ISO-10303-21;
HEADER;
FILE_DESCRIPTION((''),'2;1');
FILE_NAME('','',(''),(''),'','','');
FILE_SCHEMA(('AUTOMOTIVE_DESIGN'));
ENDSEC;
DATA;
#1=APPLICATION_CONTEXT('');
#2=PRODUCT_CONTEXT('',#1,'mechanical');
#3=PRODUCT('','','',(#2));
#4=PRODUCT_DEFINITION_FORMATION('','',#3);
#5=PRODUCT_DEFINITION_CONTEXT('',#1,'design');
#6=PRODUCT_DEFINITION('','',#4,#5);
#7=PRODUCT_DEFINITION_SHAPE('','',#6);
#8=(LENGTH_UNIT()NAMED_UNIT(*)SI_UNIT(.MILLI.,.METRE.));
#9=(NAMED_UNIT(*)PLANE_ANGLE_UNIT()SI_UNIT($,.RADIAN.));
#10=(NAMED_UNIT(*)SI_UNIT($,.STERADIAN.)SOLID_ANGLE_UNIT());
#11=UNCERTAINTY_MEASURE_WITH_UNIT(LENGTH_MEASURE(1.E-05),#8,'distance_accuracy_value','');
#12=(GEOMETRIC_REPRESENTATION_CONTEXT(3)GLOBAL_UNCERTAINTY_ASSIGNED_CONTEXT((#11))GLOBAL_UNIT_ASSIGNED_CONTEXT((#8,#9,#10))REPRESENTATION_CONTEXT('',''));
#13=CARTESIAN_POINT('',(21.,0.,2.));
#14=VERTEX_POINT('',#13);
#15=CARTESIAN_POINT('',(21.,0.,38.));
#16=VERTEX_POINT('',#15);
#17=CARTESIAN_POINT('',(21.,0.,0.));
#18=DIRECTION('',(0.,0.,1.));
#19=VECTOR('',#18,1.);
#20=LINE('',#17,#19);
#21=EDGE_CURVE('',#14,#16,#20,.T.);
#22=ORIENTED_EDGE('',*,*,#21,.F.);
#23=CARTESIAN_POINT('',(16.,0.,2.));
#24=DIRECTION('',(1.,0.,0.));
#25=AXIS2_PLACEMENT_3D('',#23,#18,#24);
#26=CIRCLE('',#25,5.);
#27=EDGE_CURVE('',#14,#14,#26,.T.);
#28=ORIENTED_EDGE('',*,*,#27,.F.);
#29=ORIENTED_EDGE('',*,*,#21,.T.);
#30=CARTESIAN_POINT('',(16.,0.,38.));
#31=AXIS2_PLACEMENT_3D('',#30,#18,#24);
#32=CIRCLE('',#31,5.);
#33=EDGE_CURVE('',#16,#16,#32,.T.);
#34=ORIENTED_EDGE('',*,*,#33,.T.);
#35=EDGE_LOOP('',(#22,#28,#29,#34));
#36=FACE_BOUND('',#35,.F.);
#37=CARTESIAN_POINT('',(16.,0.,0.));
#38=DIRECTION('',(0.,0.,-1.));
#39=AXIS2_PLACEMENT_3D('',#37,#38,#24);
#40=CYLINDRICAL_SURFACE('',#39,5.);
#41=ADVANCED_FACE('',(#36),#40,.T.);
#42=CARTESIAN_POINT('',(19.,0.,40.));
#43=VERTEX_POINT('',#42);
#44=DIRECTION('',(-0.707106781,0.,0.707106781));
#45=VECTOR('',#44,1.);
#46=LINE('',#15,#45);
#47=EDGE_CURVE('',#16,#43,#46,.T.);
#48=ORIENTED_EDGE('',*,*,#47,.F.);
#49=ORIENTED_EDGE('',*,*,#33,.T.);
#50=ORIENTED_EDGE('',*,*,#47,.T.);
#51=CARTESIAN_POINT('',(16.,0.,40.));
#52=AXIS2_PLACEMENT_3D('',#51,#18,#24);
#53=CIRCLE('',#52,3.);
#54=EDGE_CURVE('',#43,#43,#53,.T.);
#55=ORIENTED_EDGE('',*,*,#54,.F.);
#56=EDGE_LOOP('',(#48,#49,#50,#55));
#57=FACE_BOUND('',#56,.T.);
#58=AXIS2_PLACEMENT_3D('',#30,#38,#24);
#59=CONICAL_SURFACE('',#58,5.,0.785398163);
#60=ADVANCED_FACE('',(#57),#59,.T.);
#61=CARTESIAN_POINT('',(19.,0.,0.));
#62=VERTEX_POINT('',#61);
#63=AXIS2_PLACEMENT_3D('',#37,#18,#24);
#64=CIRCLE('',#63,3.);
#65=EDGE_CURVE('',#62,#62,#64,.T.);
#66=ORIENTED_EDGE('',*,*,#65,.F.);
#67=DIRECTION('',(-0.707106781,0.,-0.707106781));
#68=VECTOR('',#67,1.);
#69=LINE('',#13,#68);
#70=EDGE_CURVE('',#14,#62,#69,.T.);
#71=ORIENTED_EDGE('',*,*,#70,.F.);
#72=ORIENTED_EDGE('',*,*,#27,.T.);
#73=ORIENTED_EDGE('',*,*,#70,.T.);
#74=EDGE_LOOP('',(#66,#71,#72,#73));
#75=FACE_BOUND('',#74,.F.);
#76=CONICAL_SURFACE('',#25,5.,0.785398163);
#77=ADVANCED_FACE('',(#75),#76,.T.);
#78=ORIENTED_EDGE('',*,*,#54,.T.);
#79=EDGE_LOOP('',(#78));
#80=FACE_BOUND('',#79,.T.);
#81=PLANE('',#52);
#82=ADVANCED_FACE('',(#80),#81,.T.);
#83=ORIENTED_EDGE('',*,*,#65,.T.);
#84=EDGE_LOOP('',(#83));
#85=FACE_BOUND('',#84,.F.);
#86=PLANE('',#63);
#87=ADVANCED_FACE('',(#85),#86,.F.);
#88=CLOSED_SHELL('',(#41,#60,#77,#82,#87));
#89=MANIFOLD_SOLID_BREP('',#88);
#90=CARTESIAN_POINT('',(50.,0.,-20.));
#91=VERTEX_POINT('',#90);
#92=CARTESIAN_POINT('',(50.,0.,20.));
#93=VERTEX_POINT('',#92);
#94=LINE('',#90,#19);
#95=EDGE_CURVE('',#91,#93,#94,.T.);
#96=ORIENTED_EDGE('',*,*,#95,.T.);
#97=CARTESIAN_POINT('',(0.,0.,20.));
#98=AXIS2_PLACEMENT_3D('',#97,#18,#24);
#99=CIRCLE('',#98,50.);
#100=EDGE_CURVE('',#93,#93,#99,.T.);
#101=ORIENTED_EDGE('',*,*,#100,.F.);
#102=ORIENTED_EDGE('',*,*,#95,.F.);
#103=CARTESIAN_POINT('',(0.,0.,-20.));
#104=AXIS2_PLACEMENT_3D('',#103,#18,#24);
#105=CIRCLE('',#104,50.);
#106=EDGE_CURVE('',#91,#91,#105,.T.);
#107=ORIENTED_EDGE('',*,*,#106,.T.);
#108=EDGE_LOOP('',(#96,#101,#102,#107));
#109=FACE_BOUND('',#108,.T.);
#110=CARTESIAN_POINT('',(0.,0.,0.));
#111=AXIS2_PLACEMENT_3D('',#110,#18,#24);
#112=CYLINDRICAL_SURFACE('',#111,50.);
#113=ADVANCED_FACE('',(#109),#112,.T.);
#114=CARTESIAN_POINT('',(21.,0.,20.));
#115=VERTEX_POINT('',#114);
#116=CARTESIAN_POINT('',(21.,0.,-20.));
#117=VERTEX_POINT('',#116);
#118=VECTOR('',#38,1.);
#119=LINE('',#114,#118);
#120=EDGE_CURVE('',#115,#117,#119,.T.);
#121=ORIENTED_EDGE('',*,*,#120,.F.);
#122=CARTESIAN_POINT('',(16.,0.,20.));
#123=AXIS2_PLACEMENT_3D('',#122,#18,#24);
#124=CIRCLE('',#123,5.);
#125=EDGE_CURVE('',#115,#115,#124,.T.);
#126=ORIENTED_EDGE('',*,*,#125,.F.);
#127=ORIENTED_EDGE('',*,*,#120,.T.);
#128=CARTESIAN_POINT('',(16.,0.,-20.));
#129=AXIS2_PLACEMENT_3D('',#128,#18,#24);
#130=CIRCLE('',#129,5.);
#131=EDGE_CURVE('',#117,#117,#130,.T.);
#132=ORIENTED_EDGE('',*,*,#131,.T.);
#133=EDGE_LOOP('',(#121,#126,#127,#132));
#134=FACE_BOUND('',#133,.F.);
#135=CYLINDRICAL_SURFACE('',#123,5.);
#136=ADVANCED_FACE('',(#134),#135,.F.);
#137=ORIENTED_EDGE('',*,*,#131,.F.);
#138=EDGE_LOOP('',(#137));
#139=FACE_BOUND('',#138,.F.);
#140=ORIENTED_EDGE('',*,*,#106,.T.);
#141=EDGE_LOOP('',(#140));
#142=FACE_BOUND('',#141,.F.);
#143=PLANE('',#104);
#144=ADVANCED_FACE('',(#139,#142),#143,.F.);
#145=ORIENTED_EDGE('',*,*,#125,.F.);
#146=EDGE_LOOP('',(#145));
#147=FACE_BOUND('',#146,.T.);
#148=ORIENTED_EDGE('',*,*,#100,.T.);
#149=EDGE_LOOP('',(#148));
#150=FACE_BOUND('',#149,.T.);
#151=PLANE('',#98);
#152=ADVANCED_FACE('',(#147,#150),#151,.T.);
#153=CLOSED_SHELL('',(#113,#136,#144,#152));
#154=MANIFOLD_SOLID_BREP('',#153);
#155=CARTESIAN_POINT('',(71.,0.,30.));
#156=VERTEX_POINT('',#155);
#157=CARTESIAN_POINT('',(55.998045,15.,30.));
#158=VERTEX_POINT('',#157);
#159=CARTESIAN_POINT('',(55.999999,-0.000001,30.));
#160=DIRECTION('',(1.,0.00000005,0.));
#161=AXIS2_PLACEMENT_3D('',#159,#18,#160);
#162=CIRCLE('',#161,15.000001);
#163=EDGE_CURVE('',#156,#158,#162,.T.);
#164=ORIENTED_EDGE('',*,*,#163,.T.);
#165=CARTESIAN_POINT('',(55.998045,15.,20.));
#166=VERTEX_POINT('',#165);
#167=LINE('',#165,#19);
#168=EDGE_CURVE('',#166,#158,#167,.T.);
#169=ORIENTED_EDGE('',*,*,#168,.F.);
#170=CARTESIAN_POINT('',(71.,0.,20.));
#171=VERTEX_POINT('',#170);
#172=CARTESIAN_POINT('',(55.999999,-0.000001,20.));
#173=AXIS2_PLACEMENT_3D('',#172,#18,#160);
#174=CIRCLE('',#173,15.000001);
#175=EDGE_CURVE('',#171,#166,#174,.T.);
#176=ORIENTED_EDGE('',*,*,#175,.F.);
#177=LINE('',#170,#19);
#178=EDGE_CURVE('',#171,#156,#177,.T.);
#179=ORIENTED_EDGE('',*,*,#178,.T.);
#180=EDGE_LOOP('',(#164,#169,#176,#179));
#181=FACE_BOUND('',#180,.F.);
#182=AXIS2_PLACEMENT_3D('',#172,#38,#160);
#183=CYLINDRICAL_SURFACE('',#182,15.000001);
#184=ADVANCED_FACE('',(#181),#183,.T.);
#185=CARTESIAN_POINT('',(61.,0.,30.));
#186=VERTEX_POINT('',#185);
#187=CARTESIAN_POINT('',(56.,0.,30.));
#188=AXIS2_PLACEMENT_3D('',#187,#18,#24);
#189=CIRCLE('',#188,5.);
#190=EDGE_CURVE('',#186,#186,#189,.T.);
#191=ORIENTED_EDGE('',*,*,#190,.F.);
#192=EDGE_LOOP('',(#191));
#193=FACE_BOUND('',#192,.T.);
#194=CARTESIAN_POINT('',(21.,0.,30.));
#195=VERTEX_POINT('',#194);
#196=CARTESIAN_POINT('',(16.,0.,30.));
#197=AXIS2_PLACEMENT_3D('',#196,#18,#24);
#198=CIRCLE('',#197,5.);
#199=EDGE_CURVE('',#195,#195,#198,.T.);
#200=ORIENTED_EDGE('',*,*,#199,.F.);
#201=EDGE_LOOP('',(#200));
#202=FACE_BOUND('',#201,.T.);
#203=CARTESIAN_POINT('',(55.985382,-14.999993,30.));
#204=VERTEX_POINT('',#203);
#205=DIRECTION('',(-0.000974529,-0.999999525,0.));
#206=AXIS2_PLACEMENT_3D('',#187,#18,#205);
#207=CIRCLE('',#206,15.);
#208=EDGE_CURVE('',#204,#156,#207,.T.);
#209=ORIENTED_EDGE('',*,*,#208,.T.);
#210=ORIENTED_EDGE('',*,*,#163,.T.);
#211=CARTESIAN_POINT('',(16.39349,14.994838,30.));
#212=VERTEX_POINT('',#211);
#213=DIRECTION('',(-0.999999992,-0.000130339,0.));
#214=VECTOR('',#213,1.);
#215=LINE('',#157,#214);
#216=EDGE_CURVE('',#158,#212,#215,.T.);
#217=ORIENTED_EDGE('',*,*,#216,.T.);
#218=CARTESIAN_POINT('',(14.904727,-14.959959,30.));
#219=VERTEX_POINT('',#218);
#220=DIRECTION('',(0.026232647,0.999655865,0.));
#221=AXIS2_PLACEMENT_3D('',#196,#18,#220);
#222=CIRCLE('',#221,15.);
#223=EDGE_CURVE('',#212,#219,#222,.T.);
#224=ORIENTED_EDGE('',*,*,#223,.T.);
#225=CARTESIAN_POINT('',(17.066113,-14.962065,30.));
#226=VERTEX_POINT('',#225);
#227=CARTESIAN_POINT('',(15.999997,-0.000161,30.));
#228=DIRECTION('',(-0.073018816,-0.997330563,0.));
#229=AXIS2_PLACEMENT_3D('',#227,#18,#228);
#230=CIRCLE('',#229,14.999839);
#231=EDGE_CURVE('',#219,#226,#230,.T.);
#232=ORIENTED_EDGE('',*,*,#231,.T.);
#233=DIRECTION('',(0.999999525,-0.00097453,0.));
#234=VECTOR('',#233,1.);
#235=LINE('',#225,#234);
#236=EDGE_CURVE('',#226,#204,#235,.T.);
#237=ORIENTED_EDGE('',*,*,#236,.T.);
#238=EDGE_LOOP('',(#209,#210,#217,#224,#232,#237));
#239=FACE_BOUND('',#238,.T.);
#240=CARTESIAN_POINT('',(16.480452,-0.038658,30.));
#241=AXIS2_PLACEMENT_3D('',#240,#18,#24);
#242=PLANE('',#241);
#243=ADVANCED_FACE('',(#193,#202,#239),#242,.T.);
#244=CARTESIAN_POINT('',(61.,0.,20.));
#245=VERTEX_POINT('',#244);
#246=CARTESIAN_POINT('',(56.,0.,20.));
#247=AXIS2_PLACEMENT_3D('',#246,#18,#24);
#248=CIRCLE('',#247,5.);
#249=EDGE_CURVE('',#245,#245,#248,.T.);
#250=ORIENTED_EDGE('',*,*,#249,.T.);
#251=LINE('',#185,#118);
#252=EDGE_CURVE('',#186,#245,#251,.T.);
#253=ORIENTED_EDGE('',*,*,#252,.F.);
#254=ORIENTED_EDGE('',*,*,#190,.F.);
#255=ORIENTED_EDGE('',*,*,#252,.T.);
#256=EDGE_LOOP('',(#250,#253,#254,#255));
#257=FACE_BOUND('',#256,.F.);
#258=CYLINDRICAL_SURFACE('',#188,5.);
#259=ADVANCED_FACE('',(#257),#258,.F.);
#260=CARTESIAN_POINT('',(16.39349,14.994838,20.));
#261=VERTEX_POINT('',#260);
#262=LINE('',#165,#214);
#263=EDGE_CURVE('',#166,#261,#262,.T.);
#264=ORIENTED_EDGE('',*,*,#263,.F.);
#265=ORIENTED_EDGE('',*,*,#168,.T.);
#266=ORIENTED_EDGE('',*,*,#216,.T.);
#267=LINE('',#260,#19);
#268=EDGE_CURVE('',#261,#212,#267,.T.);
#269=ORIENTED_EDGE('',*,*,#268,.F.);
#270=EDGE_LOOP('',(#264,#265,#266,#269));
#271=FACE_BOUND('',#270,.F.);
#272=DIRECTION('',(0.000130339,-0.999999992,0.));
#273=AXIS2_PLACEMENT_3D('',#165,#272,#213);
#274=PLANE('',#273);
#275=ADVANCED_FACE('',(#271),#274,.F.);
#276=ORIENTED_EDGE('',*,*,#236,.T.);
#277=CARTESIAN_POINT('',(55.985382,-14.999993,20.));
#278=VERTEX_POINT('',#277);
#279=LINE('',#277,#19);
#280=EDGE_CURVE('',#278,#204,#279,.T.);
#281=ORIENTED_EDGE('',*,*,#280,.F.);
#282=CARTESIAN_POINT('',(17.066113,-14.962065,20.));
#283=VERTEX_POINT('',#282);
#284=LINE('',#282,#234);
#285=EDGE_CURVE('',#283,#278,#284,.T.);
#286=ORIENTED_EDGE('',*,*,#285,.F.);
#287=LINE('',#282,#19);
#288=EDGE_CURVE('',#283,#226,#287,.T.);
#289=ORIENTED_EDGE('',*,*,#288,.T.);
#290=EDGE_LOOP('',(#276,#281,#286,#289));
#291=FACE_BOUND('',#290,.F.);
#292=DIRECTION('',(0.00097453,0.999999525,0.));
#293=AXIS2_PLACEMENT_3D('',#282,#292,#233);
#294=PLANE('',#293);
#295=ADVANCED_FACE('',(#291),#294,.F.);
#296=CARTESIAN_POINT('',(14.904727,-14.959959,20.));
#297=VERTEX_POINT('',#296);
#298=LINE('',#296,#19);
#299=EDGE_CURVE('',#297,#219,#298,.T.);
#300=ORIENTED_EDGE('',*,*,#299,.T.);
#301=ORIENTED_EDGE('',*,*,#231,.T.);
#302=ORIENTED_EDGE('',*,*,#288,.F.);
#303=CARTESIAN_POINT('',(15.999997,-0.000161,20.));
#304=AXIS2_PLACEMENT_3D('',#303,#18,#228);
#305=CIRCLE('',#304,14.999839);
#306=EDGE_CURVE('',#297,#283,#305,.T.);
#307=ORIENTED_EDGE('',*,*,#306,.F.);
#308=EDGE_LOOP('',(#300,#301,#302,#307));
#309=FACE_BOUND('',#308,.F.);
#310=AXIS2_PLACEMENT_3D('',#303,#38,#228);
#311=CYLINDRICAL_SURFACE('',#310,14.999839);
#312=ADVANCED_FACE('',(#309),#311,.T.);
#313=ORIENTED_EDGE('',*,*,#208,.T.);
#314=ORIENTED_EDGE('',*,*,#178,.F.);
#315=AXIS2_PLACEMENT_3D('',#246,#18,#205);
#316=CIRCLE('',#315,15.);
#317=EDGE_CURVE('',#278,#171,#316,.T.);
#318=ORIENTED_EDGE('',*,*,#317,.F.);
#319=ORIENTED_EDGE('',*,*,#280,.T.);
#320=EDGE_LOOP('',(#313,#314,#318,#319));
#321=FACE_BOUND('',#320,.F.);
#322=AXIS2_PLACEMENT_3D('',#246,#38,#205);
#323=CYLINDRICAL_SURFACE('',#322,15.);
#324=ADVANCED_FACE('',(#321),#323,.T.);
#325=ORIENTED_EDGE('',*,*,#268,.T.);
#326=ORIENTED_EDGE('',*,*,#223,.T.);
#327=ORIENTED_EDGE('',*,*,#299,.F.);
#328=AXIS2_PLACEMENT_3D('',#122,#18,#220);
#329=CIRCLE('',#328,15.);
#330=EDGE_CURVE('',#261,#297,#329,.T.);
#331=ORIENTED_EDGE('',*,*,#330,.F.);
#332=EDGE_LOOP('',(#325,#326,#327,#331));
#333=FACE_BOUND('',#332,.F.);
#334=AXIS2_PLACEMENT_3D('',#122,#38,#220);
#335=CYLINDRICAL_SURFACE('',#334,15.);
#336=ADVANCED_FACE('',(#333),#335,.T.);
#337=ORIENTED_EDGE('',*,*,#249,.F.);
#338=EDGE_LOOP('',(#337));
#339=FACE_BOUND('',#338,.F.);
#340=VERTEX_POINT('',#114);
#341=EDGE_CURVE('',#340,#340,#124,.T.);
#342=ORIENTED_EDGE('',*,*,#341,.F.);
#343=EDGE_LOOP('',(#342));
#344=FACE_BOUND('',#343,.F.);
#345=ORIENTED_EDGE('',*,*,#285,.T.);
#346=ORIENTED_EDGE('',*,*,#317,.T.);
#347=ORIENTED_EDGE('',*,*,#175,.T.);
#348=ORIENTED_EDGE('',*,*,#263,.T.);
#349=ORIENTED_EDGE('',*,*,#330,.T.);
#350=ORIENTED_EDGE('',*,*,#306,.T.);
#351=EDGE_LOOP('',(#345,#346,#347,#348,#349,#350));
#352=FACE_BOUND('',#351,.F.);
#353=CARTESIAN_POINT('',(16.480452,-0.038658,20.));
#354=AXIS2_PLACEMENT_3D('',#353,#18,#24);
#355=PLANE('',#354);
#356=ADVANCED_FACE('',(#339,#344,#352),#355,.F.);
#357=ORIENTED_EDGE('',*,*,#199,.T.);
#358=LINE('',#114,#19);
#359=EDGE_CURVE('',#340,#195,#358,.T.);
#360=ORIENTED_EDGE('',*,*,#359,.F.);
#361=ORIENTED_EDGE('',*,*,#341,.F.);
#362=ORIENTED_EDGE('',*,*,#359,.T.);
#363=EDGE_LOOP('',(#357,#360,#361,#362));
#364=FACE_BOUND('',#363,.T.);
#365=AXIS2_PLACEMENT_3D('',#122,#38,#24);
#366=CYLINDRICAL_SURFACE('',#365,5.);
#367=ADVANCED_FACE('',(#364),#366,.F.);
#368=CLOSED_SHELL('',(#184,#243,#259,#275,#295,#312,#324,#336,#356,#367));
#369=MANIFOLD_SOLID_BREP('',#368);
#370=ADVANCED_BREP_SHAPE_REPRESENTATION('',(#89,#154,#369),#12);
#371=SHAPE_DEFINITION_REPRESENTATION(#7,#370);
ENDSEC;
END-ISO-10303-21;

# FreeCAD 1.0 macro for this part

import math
import FreeCAD as App
import Part
import Sketcher


def edges_at(feature, points):
    """Names of the edges that pass closest to the given points."""
    edges = feature.Shape.Edges
    near = lambda p: min(range(len(edges)), key=lambda i: edges[i].distToShape(Part.Vertex(*p))[0])
    return sorted({f"Edge{near(p) + 1}" for p in points})

doc = App.newDocument("Part")
body = doc.addObject("PartDesign::Body", "Body")

sketch1 = doc.addObject("Sketcher::SketchObject", "Sketch")
body.addObject(sketch1)
sketch1.AttachmentSupport = (doc.XY_Plane, [""])
sketch1.MapMode = "FlatFace"
sketch1.addGeometry(Part.Circle(App.Vector(0, 0, 0), App.Vector(0, 0, 1), 50), False)
sketch1.addConstraint(Sketcher.Constraint("Coincident", 0, 3, -1, 1))
sketch1.addConstraint(Sketcher.Constraint("Diameter", 0, 100.0))
pad1 = doc.addObject("PartDesign::Pad", "Pad")
body.addObject(pad1)
pad1.Profile = sketch1
pad1.Type = "TwoLengths"
pad1.Length = 20
pad1.Length2 = 20

sketch2 = doc.addObject("Sketcher::SketchObject", "Sketch001")
body.addObject(sketch2)
sketch2.AttachmentSupport = (doc.XY_Plane, [""])
sketch2.MapMode = "FlatFace"
sketch2.AttachmentOffset = App.Placement(App.Vector(0, 0, 20), App.Rotation())
sketch2.addGeometry(Part.Circle(App.Vector(16, 0, 0), App.Vector(0, 0, 1), 5), False)
sketch2.addConstraint(Sketcher.Constraint("PointOnObject", 0, 3, -1))
sketch2.addConstraint(Sketcher.Constraint("Diameter", 0, 10.0))
sketch2.addConstraint(Sketcher.Constraint("DistanceX", -1, 1, 0, 3, 16.0))
pocket1 = doc.addObject("PartDesign::Pocket", "Pocket")
body.addObject(pocket1)
pocket1.Profile = sketch2
pocket1.Type = "ThroughAll"
body2 = doc.addObject("PartDesign::Body", "Body001")

sketch3 = doc.addObject("Sketcher::SketchObject", "Sketch002")
body2.addObject(sketch3)
sketch3.AttachmentSupport = (doc.getObject("XY_Plane001"), [""])
sketch3.MapMode = "FlatFace"
sketch3.addGeometry(Part.Circle(App.Vector(16, 0, 0), App.Vector(0, 0, 1), 5), False)
sketch3.addConstraint(Sketcher.Constraint("PointOnObject", 0, 3, -1))
sketch3.addConstraint(Sketcher.Constraint("Diameter", 0, 10.0))
sketch3.addConstraint(Sketcher.Constraint("DistanceX", -1, 1, 0, 3, 16.0))
pad2 = doc.addObject("PartDesign::Pad", "Pad001")
body2.addObject(pad2)
pad2.Profile = sketch3
pad2.Length = 40
doc.recompute()

chamfer = doc.addObject("PartDesign::Chamfer", "Chamfer")
body2.addObject(chamfer)
chamfer.Base = (pad2, edges_at(pad2, [(11, 0, 40), (11, 0, 0)]))
chamfer.Size = 2
body3 = doc.addObject("PartDesign::Body", "Body002")

sketch4 = doc.addObject("Sketcher::SketchObject", "Sketch003")
body3.addObject(sketch4)
sketch4.AttachmentSupport = (doc.getObject("XY_Plane002"), [""])
sketch4.MapMode = "FlatFace"
sketch4.AttachmentOffset = App.Placement(App.Vector(0, 0, 20), App.Rotation())
sketch4.addGeometry(Part.LineSegment(App.Vector(17.066113, -14.962065, 0), App.Vector(55.985382, -14.999993, 0)), False)
sketch4.addGeometry(Part.ArcOfCircle(Part.Circle(App.Vector(56, 0, 0), App.Vector(0, 0, 1), 15), math.radians(-90.055836), math.radians(0)), False)
sketch4.addGeometry(Part.ArcOfCircle(Part.Circle(App.Vector(55.999999, -0.000001, 0), App.Vector(0, 0, 1), 15.000001), math.radians(0.000003), math.radians(90.007464)), False)
sketch4.addGeometry(Part.LineSegment(App.Vector(55.998045, 15, 0), App.Vector(16.39349, 14.994838, 0)), False)
sketch4.addGeometry(Part.ArcOfCircle(Part.Circle(App.Vector(16, 0, 0), App.Vector(0, 0, 1), 15), math.radians(88.496808), math.radians(265.812638)), False)
sketch4.addGeometry(Part.ArcOfCircle(Part.Circle(App.Vector(15.999997, -0.000161, 0), App.Vector(0, 0, 1), 14.999839), math.radians(-94.187397), math.radians(-85.924258)), False)
sketch4.addGeometry(Part.Circle(App.Vector(16, 0, 0), App.Vector(0, 0, 1), 5), False)
sketch4.addConstraint(Sketcher.Constraint("Coincident", 0, 2, 1, 1))
sketch4.addConstraint(Sketcher.Constraint("Coincident", 1, 2, 2, 1))
sketch4.addConstraint(Sketcher.Constraint("Coincident", 2, 2, 3, 1))
sketch4.addConstraint(Sketcher.Constraint("Coincident", 3, 2, 4, 1))
sketch4.addConstraint(Sketcher.Constraint("Coincident", 4, 2, 5, 1))
sketch4.addConstraint(Sketcher.Constraint("Coincident", 5, 2, 0, 1))
sketch4.addConstraint(Sketcher.Constraint("Coincident", 2, 3, 1, 3))
sketch4.addConstraint(Sketcher.Constraint("Coincident", 6, 3, 4, 3))
sketch4.addConstraint(Sketcher.Constraint("PointOnObject", 1, 3, -1))
sketch4.addConstraint(Sketcher.Constraint("PointOnObject", 4, 3, -1))
sketch4.addConstraint(Sketcher.Constraint("PointOnObject", 1, 2, -1))
sketch4.addConstraint(Sketcher.Constraint("Diameter", 6, 10.0))
sketch4.addConstraint(Sketcher.Constraint("Radius", 1, 15.0))
sketch4.addConstraint(Sketcher.Constraint("Radius", 4, 15.0))
sketch4.addConstraint(Sketcher.Constraint("DistanceX", -1, 1, 1, 3, 56.0))
sketch4.addConstraint(Sketcher.Constraint("DistanceX", -1, 1, 4, 3, 16.0))
sketch4.addConstraint(Sketcher.Constraint("DistanceX", 5, 3, 2, 3, 40.000002))
sketch4.addConstraint(Sketcher.Constraint("Radius", 5, 14.999839))
sketch4.addConstraint(Sketcher.Constraint("DistanceY", 5, 3, 3, 2, 14.994999))
sketch4.addConstraint(Sketcher.Constraint("DistanceY", 4, 2, -1, 1, 14.959959))
sketch4.addConstraint(Sketcher.Constraint("DistanceX", 4, 3, 0, 2, 39.985382))
sketch4.addConstraint(Sketcher.Constraint("Distance", 0, 38.919287))
sketch4.addConstraint(Sketcher.Constraint("Distance", 3, 39.604555))
pad3 = doc.addObject("PartDesign::Pad", "Pad002")
body3.addObject(pad3)
pad3.Profile = sketch4
pad3.Length = 10

sketch5 = doc.addObject("Sketcher::SketchObject", "Sketch004")
body3.addObject(sketch5)
sketch5.AttachmentSupport = (doc.getObject("XY_Plane002"), [""])
sketch5.MapMode = "FlatFace"
sketch5.AttachmentOffset = App.Placement(App.Vector(0, 0, 30), App.Rotation())
sketch5.addGeometry(Part.Circle(App.Vector(56, 0, 0), App.Vector(0, 0, 1), 5), False)
sketch5.addConstraint(Sketcher.Constraint("PointOnObject", 0, 3, -1))
sketch5.addConstraint(Sketcher.Constraint("Diameter", 0, 10.0))
sketch5.addConstraint(Sketcher.Constraint("DistanceX", -1, 1, 0, 3, 56.0))
pocket2 = doc.addObject("PartDesign::Pocket", "Pocket001")
body3.addObject(pocket2)
pocket2.Profile = sketch5
pocket2.Type = "ThroughAll"

doc.recompute()
